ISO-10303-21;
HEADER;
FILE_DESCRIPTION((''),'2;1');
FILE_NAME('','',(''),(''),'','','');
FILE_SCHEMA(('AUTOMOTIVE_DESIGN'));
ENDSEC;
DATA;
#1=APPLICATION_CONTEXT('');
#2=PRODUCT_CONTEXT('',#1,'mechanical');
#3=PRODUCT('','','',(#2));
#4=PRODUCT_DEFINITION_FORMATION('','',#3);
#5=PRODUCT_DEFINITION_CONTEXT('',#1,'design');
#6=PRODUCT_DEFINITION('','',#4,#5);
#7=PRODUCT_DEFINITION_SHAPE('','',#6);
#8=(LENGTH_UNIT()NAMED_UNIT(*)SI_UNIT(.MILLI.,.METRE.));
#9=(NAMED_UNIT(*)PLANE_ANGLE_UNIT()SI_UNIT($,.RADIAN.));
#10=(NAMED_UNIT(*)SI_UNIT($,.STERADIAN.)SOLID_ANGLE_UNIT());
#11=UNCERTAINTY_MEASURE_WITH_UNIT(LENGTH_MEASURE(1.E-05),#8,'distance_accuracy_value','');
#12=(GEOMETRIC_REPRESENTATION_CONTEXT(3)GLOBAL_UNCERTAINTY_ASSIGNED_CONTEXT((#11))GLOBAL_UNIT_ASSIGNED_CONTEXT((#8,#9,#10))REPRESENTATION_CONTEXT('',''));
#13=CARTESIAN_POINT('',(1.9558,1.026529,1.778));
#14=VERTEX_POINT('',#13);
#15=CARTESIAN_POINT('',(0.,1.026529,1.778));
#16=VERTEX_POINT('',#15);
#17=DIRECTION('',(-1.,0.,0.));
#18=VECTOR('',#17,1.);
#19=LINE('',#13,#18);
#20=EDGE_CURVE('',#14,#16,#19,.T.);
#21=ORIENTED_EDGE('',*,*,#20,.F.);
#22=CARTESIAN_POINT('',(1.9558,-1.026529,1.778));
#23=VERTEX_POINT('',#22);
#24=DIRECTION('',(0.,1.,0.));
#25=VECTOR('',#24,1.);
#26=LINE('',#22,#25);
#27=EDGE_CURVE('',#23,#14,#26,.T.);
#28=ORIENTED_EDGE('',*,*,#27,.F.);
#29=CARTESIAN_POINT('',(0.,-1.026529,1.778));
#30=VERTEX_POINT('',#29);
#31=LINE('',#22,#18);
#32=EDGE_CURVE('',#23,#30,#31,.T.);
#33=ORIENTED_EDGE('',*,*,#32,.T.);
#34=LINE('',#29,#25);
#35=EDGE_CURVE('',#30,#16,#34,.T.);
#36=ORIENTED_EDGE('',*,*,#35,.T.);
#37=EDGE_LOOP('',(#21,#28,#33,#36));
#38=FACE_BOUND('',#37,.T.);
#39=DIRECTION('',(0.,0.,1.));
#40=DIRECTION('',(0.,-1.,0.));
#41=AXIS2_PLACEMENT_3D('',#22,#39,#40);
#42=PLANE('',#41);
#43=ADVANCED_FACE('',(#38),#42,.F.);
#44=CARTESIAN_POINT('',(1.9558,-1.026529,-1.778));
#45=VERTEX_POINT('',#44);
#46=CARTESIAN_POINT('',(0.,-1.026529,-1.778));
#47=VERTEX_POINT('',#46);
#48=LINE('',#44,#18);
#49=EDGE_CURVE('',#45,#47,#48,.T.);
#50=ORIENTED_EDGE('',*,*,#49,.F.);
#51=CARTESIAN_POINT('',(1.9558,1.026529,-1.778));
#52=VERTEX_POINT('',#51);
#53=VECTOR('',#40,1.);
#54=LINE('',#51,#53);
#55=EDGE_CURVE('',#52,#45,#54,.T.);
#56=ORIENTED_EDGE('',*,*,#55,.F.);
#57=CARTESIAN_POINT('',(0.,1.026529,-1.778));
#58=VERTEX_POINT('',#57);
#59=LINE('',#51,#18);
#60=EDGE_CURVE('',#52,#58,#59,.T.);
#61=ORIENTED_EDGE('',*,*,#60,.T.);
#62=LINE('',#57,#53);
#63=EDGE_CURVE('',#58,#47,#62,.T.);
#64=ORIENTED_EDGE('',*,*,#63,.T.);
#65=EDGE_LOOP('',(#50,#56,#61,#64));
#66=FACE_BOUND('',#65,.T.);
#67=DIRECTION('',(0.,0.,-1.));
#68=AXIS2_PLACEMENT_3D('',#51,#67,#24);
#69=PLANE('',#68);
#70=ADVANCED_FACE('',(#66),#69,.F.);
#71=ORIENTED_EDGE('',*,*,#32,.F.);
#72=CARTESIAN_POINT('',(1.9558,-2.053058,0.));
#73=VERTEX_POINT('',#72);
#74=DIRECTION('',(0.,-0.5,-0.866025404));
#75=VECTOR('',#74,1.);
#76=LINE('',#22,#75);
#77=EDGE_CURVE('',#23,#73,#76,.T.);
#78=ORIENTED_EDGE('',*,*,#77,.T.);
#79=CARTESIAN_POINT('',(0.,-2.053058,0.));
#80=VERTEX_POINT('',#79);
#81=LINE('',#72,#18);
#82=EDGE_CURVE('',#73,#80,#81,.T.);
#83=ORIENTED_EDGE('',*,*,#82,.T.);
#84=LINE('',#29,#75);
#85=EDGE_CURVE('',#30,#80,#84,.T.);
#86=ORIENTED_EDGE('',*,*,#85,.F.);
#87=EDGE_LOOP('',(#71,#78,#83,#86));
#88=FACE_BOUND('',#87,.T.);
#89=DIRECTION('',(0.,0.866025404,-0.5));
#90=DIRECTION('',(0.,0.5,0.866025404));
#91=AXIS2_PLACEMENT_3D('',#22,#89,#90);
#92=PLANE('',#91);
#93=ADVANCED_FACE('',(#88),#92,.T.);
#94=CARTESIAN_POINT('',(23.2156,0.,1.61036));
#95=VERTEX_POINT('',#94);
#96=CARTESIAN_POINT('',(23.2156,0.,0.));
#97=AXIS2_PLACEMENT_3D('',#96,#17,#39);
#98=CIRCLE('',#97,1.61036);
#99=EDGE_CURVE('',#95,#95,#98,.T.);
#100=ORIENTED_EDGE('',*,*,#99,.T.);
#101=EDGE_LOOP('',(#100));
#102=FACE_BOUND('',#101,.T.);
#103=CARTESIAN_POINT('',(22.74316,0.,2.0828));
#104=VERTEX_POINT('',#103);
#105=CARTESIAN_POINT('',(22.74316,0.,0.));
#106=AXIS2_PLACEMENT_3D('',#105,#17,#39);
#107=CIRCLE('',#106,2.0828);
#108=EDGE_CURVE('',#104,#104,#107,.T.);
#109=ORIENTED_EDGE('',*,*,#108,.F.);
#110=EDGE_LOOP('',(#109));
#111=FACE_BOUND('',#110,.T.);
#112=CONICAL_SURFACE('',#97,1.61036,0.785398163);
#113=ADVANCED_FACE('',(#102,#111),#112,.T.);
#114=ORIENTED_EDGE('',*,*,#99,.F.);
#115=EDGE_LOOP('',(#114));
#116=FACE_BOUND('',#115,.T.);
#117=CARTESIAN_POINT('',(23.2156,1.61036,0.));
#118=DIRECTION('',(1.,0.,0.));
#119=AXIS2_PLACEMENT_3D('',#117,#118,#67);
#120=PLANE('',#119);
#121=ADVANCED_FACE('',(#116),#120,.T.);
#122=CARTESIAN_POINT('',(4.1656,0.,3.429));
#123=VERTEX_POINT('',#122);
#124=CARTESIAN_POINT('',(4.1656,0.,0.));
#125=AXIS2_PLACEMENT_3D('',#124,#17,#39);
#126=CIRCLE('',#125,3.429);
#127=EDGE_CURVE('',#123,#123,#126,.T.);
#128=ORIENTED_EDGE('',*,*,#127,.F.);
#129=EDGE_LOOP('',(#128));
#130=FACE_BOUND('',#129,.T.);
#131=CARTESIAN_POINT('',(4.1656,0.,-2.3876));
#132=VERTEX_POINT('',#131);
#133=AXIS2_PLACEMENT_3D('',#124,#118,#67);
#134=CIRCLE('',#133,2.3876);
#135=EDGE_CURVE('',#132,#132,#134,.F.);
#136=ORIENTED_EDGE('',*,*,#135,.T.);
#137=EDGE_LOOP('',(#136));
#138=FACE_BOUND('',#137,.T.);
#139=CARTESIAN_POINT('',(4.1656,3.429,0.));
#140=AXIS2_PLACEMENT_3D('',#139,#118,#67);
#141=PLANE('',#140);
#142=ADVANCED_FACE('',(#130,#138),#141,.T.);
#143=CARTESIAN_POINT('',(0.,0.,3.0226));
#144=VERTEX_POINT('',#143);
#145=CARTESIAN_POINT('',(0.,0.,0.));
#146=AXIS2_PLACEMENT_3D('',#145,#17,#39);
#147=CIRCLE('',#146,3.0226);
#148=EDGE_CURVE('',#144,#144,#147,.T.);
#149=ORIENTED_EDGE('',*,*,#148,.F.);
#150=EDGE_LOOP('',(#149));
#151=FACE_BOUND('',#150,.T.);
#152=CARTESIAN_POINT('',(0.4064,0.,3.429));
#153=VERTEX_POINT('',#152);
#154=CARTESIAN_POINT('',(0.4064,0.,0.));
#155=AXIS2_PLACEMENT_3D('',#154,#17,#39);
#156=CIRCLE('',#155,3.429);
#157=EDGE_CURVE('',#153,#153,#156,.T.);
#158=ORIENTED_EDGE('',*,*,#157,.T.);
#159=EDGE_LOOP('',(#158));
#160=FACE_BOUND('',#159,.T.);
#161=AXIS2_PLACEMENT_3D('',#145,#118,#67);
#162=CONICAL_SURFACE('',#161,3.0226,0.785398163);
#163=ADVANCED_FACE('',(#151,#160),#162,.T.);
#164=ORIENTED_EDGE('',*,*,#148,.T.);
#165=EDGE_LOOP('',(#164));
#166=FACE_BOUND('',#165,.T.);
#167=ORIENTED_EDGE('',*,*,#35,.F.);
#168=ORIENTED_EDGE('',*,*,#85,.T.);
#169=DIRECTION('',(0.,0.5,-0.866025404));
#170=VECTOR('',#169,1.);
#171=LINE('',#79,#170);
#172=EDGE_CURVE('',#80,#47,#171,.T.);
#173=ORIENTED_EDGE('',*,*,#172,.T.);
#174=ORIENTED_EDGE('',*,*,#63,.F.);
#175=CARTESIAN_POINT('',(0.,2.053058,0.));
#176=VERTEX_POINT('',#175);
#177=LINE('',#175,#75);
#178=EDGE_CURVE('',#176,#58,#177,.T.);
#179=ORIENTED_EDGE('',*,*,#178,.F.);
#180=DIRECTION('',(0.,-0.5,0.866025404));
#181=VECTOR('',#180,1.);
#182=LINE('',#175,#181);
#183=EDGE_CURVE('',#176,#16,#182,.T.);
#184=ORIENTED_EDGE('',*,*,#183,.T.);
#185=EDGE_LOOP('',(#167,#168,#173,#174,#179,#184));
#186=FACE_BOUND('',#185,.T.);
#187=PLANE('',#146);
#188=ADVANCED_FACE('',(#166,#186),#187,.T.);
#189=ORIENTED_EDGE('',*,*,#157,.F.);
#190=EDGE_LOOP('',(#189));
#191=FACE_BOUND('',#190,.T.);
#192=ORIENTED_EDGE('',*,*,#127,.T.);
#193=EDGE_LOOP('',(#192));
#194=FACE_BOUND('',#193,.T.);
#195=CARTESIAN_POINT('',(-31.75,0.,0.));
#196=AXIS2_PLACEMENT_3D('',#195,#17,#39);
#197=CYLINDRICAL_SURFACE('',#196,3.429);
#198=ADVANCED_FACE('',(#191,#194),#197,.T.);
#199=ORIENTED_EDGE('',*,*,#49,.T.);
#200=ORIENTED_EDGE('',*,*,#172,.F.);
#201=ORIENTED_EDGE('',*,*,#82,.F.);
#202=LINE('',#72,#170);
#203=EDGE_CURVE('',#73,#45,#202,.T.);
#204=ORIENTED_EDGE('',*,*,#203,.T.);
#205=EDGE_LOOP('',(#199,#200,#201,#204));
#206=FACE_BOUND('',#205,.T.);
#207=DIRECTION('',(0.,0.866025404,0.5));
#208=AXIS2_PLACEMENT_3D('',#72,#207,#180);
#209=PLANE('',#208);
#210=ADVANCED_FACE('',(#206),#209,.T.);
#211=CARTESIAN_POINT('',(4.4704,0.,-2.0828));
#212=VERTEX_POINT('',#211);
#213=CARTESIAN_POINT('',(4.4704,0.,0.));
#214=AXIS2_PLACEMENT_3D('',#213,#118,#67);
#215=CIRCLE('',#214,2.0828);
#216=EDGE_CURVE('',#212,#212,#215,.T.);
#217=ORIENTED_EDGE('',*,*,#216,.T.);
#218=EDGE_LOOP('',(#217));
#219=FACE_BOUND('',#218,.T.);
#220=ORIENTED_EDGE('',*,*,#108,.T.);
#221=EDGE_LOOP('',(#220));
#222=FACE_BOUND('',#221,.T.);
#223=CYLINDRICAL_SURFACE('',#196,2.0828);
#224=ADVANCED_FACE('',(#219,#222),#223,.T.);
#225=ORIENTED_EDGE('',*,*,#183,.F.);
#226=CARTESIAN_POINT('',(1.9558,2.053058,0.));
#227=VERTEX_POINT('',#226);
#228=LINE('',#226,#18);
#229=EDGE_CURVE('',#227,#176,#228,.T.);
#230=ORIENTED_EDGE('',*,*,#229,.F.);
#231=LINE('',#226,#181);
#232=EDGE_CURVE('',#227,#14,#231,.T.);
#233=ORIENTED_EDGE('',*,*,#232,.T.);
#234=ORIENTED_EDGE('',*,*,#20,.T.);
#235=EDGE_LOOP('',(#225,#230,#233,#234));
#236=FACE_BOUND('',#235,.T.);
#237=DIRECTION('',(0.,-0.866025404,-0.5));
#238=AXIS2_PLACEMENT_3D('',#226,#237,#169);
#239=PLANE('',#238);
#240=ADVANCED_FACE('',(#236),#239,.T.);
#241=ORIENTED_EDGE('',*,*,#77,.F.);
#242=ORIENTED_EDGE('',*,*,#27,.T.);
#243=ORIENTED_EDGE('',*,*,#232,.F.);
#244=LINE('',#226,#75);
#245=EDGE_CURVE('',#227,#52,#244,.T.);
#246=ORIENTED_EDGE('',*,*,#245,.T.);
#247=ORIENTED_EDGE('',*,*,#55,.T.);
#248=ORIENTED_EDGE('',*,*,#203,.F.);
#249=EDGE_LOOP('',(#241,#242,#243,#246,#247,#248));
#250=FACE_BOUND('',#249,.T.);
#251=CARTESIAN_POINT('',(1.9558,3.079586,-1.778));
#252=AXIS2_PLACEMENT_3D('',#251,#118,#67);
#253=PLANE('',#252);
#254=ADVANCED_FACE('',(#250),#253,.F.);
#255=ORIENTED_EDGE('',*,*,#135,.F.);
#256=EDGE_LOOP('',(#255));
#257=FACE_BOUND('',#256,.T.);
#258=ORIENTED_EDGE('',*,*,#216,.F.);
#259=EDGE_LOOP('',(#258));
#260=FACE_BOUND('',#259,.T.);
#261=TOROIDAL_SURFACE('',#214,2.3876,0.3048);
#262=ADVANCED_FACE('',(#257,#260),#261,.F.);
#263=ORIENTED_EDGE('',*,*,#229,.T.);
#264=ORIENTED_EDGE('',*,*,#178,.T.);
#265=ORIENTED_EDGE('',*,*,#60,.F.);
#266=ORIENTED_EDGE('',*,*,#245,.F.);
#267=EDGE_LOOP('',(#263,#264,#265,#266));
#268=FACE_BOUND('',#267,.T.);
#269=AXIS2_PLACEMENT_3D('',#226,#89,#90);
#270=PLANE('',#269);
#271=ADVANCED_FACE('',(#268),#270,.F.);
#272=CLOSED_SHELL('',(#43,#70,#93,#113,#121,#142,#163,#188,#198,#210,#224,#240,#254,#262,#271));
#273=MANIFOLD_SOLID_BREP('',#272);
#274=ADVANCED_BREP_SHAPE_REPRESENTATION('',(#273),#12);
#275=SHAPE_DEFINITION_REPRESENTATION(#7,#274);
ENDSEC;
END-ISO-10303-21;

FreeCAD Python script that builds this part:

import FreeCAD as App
import Part
import Sketcher
from FreeCAD import Vector
Q = App.Units.Quantity


def edges_at(feature, points):
    """Names of the edges that pass closest to the given points."""
    edges = feature.Shape.Edges
    near = lambda p: min(range(len(edges)), key=lambda i: edges[i].distToShape(Part.Vertex(*p))[0])
    return sorted({f"Edge{near(p) + 1}" for p in points})

doc = App.newDocument("Part")
body = doc.addObject("PartDesign::Body", "Body")

sketch1 = body.newObject("Sketcher::SketchObject", "Sketch")
sketch1.AttachmentSupport = (doc.getObject("XY_Plane"), [""])
sketch1.MapMode = "FlatFace"
sketch1.addGeometry(Part.LineSegment(Vector(0, 3, 0), Vector(0, 0, 0)), False)
sketch1.addGeometry(Part.LineSegment(Vector(0, 0, 0), Vector(23.2, 0, 0)), False)
sketch1.addGeometry(Part.LineSegment(Vector(23.2, 0, 0), Vector(23.2, 1.6, 0)), False)
sketch1.addGeometry(Part.LineSegment(Vector(23.2, 1.6, 0), Vector(22.7, 2.1, 0)), False)
sketch1.addGeometry(Part.LineSegment(Vector(22.7, 2.1, 0), Vector(4.2, 2.1, 0)), False)
sketch1.addGeometry(Part.LineSegment(Vector(4.2, 2.1, 0), Vector(4.2, 3.4, 0)), False)
sketch1.addGeometry(Part.LineSegment(Vector(4.2, 3.4, 0), Vector(0.4, 3.4, 0)), False)
sketch1.addGeometry(Part.LineSegment(Vector(0.4, 3.4, 0), Vector(0, 3, 0)), False)
sketch1.addConstraint(Sketcher.Constraint("Coincident", 0, 2, 1, 1))
sketch1.addConstraint(Sketcher.Constraint("Coincident", 1, 2, 2, 1))
sketch1.addConstraint(Sketcher.Constraint("Coincident", 2, 2, 3, 1))
sketch1.addConstraint(Sketcher.Constraint("Coincident", 3, 2, 4, 1))
sketch1.addConstraint(Sketcher.Constraint("Coincident", 4, 2, 5, 1))
sketch1.addConstraint(Sketcher.Constraint("Coincident", 5, 2, 6, 1))
sketch1.addConstraint(Sketcher.Constraint("Coincident", 6, 2, 7, 1))
sketch1.addConstraint(Sketcher.Constraint("Coincident", 7, 2, 0, 1))
sketch1.addConstraint(Sketcher.Constraint("Vertical", 0))
sketch1.addConstraint(Sketcher.Constraint("Horizontal", 1))
sketch1.addConstraint(Sketcher.Constraint("Vertical", 2))
sketch1.addConstraint(Sketcher.Constraint("Horizontal", 4))
sketch1.addConstraint(Sketcher.Constraint("Vertical", 5))
sketch1.addConstraint(Sketcher.Constraint("Horizontal", 6))
sketch1.addConstraint(Sketcher.Constraint("Coincident", 0, 2, -1, 1))
sketch1.addConstraint(Sketcher.Constraint("Perpendicular", 3, 7))
sketch1.addConstraint(Sketcher.Constraint("Angle", 3, Q("135 deg")))
sketch1.addConstraint(Sketcher.Constraint("DistanceX", 1, 1, 1, 2, Q("0.914 in")))
sketch1.addConstraint(Sketcher.Constraint("DistanceX", 6, 2, 6, 1, Q("0.148 in")))
sketch1.addConstraint(Sketcher.Constraint("DistanceY", 0, 2, 0, 1, Q("0.119 in")))
sketch1.addConstraint(Sketcher.Constraint("DistanceY", 5, 1, 5, 2, Q("0.053 in")))
sketch1.addConstraint(Sketcher.Constraint("DistanceX", 4, 2, 2, 2, Q("0.75 in")))
sketch1.addConstraint(Sketcher.Constraint("DistanceX", 4, 2, 4, 1, Q("0.7314 in")))
revolution = body.newObject("PartDesign::Revolution", "Revolution")
revolution.Profile = sketch1
revolution.ReferenceAxis = (sketch1, ["H_Axis"])
revolution.Angle = 360
doc.recompute()

fillet = body.newObject("PartDesign::Fillet", "Fillet")
fillet.Base = (revolution, edges_at(revolution, [(4.166, -2.083, 0)]))
fillet.Radius = Q("0.012 in")

sketch2 = body.newObject("Sketcher::SketchObject", "Sketch001")
sketch2.AttachmentSupport = (doc.getObject("YZ_Plane"), [""])
sketch2.MapMode = "FlatFace"
sketch2.addGeometry(Part.LineSegment(Vector(2.1, 0, 0), Vector(1, -1.8, 0)), False)
sketch2.addGeometry(Part.LineSegment(Vector(1, -1.8, 0), Vector(-1, -1.8, 0)), False)
sketch2.addGeometry(Part.LineSegment(Vector(-1, -1.8, 0), Vector(-2.1, 0, 0)), False)
sketch2.addGeometry(Part.LineSegment(Vector(-2.1, 0, 0), Vector(-1, 1.8, 0)), False)
sketch2.addGeometry(Part.LineSegment(Vector(-1, 1.8, 0), Vector(1, 1.8, 0)), False)
sketch2.addGeometry(Part.LineSegment(Vector(1, 1.8, 0), Vector(2.1, 0, 0)), False)
sketch2.addConstraint(Sketcher.Constraint("Coincident", 0, 2, 1, 1))
sketch2.addConstraint(Sketcher.Constraint("Coincident", 1, 2, 2, 1))
sketch2.addConstraint(Sketcher.Constraint("Coincident", 2, 2, 3, 1))
sketch2.addConstraint(Sketcher.Constraint("Coincident", 3, 2, 4, 1))
sketch2.addConstraint(Sketcher.Constraint("Coincident", 4, 2, 5, 1))
sketch2.addConstraint(Sketcher.Constraint("Coincident", 5, 2, 0, 1))
sketch2.addConstraint(Sketcher.Constraint("Horizontal", 1))
sketch2.addConstraint(Sketcher.Constraint("Horizontal", 4))
sketch2.addConstraint(Sketcher.Constraint("Symmetric", 0, 2, 3, 2, -1, 1))
sketch2.addConstraint(Sketcher.Constraint("Symmetric", 2, 2, 5, 2, -1, 1))
sketch2.addConstraint(Sketcher.Constraint("PointOnObject", 2, 2, -1))
sketch2.addConstraint(Sketcher.Constraint("Parallel", 2, 5))
sketch2.addConstraint(Sketcher.Constraint("Vertical", 1, 2, 3, 2))
sketch2.addConstraint(Sketcher.Constraint("Angle", 0, Q("-120 deg")))
sketch2.addConstraint(Sketcher.Constraint("DistanceY", 0, 2, -1, 1, Q("0.07 in")))
sketch2.addConstraint(Sketcher.Constraint("DistanceX", 1, 2, 1, 1, 2.053058))
pocket1 = body.newObject("PartDesign::Pocket", "Pocket")
pocket1.Profile = sketch2
pocket1.Length = Q("0.077 in")
pocket1.Reversed = True

doc.recompute()
